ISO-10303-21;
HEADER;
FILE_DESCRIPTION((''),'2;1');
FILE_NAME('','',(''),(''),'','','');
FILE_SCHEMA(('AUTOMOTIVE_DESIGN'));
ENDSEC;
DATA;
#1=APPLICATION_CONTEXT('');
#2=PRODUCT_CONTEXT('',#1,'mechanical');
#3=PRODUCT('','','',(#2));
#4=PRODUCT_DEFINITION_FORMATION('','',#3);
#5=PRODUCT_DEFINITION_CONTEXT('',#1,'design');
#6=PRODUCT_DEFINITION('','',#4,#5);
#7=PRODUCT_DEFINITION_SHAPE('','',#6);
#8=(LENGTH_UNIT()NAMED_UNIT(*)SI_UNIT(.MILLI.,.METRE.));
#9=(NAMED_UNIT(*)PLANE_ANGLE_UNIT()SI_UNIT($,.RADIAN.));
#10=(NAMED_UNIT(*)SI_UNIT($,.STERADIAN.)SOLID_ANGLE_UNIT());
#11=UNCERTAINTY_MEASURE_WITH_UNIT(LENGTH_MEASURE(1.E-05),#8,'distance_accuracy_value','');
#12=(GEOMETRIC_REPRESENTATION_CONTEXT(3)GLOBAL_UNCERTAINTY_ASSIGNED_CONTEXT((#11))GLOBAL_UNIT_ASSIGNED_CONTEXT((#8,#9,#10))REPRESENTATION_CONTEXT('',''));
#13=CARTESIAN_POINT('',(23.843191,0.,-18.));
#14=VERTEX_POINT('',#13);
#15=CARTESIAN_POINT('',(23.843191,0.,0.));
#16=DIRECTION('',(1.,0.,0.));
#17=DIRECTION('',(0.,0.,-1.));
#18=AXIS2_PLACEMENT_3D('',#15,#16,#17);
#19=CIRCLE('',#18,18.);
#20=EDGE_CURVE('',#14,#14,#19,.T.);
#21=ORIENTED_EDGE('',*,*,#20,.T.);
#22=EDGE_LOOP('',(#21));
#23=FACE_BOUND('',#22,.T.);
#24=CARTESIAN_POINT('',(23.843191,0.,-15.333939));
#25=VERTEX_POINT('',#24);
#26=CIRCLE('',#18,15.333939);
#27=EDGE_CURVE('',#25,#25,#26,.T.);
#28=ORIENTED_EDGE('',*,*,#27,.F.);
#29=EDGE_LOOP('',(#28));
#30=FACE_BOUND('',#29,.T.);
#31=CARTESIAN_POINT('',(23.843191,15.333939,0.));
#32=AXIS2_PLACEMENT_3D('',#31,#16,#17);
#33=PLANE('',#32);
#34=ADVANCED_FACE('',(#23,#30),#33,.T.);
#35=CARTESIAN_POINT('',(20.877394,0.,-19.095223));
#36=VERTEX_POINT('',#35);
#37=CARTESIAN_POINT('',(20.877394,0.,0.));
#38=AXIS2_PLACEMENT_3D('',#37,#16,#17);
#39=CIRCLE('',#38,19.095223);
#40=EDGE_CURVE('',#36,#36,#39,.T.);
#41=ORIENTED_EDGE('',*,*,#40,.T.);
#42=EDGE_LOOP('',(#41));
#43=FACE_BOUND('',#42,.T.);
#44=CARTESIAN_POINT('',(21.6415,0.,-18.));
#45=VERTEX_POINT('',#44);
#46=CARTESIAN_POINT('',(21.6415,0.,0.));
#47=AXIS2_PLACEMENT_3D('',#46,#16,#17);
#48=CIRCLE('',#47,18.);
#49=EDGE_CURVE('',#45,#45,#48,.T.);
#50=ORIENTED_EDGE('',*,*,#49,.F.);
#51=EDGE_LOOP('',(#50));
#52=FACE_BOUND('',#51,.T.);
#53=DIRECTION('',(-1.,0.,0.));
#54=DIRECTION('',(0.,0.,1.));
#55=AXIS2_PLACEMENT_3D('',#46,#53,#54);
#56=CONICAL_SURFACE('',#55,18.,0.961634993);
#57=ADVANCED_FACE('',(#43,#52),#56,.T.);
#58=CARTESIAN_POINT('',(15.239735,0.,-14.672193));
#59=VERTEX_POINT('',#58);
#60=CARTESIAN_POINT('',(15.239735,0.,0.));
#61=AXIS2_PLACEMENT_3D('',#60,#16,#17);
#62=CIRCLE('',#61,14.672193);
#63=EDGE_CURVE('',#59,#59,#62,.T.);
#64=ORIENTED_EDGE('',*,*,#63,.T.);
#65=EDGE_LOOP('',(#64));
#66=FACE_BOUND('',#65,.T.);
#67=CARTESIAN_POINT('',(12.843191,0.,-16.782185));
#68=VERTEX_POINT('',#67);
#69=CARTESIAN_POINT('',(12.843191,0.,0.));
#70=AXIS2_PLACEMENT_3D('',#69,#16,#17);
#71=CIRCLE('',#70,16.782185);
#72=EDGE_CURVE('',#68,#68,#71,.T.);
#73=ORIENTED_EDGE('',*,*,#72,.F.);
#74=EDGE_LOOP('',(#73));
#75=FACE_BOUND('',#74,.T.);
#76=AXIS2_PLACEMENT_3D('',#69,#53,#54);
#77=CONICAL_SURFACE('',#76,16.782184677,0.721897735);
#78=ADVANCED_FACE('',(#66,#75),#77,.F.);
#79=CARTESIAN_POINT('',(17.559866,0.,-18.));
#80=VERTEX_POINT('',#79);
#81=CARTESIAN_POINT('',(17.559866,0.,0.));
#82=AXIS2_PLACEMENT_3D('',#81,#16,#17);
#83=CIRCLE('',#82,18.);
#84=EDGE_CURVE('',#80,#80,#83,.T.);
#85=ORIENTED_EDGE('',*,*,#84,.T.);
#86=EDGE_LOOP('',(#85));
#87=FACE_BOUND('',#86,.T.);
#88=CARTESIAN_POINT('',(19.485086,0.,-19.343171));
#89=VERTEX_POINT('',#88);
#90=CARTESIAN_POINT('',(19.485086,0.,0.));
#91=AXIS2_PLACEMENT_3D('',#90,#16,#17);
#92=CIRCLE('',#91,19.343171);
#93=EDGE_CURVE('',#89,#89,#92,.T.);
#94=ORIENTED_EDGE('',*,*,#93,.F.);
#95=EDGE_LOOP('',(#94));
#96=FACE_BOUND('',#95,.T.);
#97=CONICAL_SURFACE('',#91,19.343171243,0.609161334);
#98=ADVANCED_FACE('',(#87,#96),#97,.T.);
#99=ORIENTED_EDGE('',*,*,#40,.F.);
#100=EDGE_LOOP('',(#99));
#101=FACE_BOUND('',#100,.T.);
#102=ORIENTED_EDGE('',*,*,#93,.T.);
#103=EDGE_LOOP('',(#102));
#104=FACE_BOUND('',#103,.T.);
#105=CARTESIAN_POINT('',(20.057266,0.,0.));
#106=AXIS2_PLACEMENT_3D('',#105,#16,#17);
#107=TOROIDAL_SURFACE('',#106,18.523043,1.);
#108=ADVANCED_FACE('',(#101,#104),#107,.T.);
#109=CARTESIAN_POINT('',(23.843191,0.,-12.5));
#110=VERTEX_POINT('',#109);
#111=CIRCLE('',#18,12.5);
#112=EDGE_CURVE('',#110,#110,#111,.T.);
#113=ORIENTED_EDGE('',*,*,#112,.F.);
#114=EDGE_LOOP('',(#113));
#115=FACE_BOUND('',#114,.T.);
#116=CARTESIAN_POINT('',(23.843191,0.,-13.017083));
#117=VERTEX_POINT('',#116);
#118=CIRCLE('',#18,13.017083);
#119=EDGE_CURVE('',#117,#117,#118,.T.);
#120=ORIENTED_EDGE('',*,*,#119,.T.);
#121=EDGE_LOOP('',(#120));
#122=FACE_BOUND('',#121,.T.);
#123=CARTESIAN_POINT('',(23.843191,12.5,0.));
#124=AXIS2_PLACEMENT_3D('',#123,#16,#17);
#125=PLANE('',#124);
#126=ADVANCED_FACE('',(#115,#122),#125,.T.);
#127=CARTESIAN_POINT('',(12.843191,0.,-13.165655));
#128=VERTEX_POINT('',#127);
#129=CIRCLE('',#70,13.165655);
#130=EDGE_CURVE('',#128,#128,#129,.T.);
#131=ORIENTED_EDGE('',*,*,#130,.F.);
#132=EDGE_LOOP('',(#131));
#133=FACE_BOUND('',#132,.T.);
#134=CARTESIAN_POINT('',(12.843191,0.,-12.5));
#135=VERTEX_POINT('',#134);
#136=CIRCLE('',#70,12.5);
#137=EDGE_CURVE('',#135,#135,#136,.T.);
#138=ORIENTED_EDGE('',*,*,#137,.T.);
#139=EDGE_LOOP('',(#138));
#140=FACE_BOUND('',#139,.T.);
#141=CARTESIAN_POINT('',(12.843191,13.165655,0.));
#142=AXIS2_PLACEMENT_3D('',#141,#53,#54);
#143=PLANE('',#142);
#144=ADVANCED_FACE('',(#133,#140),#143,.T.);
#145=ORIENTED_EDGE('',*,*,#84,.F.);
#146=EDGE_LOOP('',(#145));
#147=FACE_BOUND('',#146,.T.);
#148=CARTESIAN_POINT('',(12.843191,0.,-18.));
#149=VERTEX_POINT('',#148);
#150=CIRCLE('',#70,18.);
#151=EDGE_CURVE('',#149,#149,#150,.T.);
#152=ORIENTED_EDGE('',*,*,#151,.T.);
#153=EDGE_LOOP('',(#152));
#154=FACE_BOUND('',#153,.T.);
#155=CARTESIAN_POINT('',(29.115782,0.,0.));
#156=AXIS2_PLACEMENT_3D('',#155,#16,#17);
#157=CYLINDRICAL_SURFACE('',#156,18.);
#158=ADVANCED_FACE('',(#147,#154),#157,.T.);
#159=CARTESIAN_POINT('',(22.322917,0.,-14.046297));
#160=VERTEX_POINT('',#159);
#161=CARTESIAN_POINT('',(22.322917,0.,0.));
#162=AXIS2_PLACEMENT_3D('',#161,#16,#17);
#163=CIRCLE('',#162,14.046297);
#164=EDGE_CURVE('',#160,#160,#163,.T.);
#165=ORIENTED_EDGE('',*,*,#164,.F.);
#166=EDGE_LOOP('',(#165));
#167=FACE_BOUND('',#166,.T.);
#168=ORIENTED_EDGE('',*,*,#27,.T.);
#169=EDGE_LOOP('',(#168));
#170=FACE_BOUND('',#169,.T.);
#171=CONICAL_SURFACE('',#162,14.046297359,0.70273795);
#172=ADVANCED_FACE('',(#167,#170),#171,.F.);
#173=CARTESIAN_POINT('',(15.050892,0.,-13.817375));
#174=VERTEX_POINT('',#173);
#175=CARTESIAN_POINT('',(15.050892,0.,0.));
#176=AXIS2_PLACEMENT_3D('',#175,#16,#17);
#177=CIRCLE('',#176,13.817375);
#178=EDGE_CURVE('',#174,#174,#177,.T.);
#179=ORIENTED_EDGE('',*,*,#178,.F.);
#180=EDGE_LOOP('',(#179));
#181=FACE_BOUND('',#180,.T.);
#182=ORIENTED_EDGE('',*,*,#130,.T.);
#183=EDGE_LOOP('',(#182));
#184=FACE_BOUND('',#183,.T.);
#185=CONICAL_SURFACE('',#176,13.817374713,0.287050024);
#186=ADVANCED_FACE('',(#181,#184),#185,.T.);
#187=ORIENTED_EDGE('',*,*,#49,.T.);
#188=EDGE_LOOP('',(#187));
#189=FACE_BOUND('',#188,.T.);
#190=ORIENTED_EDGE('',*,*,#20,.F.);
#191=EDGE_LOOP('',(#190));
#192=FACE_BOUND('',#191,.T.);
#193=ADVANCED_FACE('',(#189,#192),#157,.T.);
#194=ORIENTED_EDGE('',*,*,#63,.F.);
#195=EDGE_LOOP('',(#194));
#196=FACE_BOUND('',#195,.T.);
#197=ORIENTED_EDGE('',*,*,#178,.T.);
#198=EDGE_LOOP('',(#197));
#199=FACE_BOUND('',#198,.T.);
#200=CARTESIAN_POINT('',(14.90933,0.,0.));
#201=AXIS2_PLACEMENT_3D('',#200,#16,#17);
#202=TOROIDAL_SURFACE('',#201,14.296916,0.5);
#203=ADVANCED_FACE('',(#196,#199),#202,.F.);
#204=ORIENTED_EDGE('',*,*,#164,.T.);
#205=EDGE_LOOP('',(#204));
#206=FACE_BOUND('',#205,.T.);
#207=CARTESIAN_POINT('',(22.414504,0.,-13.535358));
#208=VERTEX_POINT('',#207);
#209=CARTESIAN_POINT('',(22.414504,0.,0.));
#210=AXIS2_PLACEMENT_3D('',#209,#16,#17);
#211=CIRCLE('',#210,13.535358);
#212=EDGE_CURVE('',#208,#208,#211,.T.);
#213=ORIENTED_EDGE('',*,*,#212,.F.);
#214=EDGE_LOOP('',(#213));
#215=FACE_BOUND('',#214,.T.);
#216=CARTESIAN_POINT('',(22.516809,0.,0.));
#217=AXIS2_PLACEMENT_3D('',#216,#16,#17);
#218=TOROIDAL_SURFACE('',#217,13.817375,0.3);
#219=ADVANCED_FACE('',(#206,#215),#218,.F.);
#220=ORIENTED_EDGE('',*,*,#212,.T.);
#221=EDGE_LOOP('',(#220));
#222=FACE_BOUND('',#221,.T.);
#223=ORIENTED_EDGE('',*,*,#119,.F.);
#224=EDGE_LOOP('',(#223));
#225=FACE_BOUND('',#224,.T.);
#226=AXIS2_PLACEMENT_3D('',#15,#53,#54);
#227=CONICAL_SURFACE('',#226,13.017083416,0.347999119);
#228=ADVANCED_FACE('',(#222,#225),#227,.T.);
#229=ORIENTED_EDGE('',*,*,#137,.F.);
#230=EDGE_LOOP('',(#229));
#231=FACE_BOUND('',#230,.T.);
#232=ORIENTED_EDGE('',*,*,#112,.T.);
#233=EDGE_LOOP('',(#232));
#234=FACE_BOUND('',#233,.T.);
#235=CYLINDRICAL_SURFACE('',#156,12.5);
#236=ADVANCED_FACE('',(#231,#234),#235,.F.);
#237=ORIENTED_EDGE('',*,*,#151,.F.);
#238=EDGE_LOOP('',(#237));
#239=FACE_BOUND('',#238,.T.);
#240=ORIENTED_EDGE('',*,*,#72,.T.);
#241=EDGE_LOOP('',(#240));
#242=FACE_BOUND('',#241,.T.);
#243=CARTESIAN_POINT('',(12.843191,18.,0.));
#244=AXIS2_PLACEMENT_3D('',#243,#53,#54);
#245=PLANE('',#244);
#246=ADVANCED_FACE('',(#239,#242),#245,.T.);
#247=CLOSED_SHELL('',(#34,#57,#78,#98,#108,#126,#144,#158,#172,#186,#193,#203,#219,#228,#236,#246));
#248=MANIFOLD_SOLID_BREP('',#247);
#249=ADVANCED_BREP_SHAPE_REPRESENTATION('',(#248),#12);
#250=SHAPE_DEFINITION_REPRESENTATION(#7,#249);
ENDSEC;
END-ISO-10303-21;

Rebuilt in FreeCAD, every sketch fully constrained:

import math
import FreeCAD as App
import Part
import Sketcher
from FreeCAD import Vector

doc = App.newDocument("Part")
body = doc.addObject("PartDesign::Body", "Body")

# Sketch on XY plane
sketch1 = doc.addObject("Sketcher::SketchObject", "Sketch")
body.addObject(sketch1)
sketch1.AttachmentSupport = (doc.XY_Plane, [""])
sketch1.MapMode = "FlatFace"
sketch1.addGeometry([
    Part.LineSegment(Vector(23.84, 18, 0), Vector(21.64, 18, 0)),  # 0
    Part.LineSegment(Vector(21.64, 18, 0), Vector(20.88, 19.1, 0)),  # 1
    Part.ArcOfCircle(Part.Circle(Vector(20.06, 18.52, 0), Vector(0, 0, 1), 1), math.radians(35), math.radians(125)),  # 2
    Part.LineSegment(Vector(19.49, 19.34, 0), Vector(17.56, 18, 0)),  # 3
    Part.LineSegment(Vector(17.56, 18, 0), Vector(12.84, 18, 0)),  # 4
    Part.LineSegment(Vector(12.84, 18, 0), Vector(12.84, 16.78, 0)),  # 5
    Part.LineSegment(Vector(12.84, 16.78, 0), Vector(15.24, 14.67, 0)),  # 6
    Part.ArcOfCircle(Part.Circle(Vector(14.91, 14.3, 0), Vector(0, 0, 1), 0.5), math.radians(-74), math.radians(49)),  # 7
    Part.LineSegment(Vector(15.05, 13.82, 0), Vector(12.84, 13.17, 0)),  # 8
    Part.LineSegment(Vector(12.84, 13.17, 0), Vector(12.84, 12.5, 0)),  # 9
    Part.LineSegment(Vector(12.84, 12.5, 0), Vector(23.84, 12.5, 0)),  # 10
    Part.LineSegment(Vector(23.84, 12.5, 0), Vector(23.84, 13.02, 0)),  # 11
    Part.LineSegment(Vector(23.84, 13.02, 0), Vector(22.41, 13.54, 0)),  # 12
    Part.ArcOfCircle(Part.Circle(Vector(22.52, 13.82, 0), Vector(0, 0, 1), 0.3), math.radians(130), math.radians(250)),  # 13
    Part.LineSegment(Vector(22.32, 14.05, 0), Vector(23.84, 15.33, 0)),  # 14
    Part.LineSegment(Vector(23.84, 15.33, 0), Vector(23.84, 18, 0)),  # 15
], False)
sketch1.addConstraint([
    Sketcher.Constraint("Coincident", 0, 2, 1, 1),
    Sketcher.Constraint("Tangent", 1, 2, 2, 1),
    Sketcher.Constraint("Tangent", 2, 2, 3, 1),
    Sketcher.Constraint("Coincident", 3, 2, 4, 1),
    Sketcher.Constraint("Coincident", 4, 2, 5, 1),
    Sketcher.Constraint("Coincident", 5, 2, 6, 1),
    Sketcher.Constraint("Tangent", 6, 2, 7, 2),
    Sketcher.Constraint("Tangent", 7, 1, 8, 1),
    Sketcher.Constraint("Coincident", 8, 2, 9, 1),
    Sketcher.Constraint("Coincident", 9, 2, 10, 1),
    Sketcher.Constraint("Coincident", 10, 2, 11, 1),
    Sketcher.Constraint("Coincident", 11, 2, 12, 1),
    Sketcher.Constraint("Tangent", 12, 2, 13, 2),
    Sketcher.Constraint("Tangent", 13, 1, 14, 1),
    Sketcher.Constraint("Coincident", 14, 2, 15, 1),
    Sketcher.Constraint("Coincident", 15, 2, 0, 1),
    Sketcher.Constraint("Horizontal", 0),
    Sketcher.Constraint("Horizontal", 4),
    Sketcher.Constraint("Vertical", 5),
    Sketcher.Constraint("Vertical", 9),
    Sketcher.Constraint("Horizontal", 10),
    Sketcher.Constraint("Vertical", 11),
    Sketcher.Constraint("Vertical", 15),
    Sketcher.Constraint("Perpendicular", 1, 3),
    Sketcher.Constraint("Horizontal", 0, 2, 3, 2),
    Sketcher.Constraint("Horizontal", 13, 3, 7, 1),
    Sketcher.Constraint("Vertical", 5, 2, 8, 2),
    Sketcher.Constraint("Vertical", 11, 2, 14, 2),
    Sketcher.Constraint("Radius", 2, 1.0),
    Sketcher.Constraint("Radius", 7, 0.5),
    Sketcher.Constraint("Radius", 13, 0.3),
    Sketcher.Constraint("DistanceX", 10, 1, 10, 2, 11.0),
    Sketcher.Constraint("DistanceY", -1, 1, 0, 2, 18.0),
    Sketcher.Constraint("DistanceY", -1, 1, 9, 2, 12.5),
    Sketcher.Constraint("Distance", 14, 1.992299),
    Sketcher.Constraint("DistanceX", 0, 2, 0, 1, 2.201691),
    Sketcher.Constraint("DistanceY", 15, 1, 15, 2, 2.666061),
    Sketcher.Constraint("DistanceX", -1, 1, 0, 2, 21.6415),
    Sketcher.Constraint("DistanceX", 3, 2, 2, 3, 2.497401),
    Sketcher.Constraint("DistanceX", 5, 2, 7, 1, 2.207701),
    Sketcher.Constraint("Distance", 1, 1.335429),
    Sketcher.Constraint("DistanceY", 5, 2, 5, 1, 1.217815),
    Sketcher.Constraint("DistanceY", 9, 2, 9, 1, 0.665655),
    Sketcher.Constraint("DistanceY", 11, 1, 11, 2, 0.517083),
    Sketcher.Constraint("DistanceX", -1, 1, 7, 3, 14.90933),
])
revolution = doc.addObject("PartDesign::Revolution", "Revolution")
body.addObject(revolution)
revolution.Profile = sketch1
revolution.ReferenceAxis = (sketch1, ["H_Axis"])
revolution.Angle = 360

doc.recompute()
